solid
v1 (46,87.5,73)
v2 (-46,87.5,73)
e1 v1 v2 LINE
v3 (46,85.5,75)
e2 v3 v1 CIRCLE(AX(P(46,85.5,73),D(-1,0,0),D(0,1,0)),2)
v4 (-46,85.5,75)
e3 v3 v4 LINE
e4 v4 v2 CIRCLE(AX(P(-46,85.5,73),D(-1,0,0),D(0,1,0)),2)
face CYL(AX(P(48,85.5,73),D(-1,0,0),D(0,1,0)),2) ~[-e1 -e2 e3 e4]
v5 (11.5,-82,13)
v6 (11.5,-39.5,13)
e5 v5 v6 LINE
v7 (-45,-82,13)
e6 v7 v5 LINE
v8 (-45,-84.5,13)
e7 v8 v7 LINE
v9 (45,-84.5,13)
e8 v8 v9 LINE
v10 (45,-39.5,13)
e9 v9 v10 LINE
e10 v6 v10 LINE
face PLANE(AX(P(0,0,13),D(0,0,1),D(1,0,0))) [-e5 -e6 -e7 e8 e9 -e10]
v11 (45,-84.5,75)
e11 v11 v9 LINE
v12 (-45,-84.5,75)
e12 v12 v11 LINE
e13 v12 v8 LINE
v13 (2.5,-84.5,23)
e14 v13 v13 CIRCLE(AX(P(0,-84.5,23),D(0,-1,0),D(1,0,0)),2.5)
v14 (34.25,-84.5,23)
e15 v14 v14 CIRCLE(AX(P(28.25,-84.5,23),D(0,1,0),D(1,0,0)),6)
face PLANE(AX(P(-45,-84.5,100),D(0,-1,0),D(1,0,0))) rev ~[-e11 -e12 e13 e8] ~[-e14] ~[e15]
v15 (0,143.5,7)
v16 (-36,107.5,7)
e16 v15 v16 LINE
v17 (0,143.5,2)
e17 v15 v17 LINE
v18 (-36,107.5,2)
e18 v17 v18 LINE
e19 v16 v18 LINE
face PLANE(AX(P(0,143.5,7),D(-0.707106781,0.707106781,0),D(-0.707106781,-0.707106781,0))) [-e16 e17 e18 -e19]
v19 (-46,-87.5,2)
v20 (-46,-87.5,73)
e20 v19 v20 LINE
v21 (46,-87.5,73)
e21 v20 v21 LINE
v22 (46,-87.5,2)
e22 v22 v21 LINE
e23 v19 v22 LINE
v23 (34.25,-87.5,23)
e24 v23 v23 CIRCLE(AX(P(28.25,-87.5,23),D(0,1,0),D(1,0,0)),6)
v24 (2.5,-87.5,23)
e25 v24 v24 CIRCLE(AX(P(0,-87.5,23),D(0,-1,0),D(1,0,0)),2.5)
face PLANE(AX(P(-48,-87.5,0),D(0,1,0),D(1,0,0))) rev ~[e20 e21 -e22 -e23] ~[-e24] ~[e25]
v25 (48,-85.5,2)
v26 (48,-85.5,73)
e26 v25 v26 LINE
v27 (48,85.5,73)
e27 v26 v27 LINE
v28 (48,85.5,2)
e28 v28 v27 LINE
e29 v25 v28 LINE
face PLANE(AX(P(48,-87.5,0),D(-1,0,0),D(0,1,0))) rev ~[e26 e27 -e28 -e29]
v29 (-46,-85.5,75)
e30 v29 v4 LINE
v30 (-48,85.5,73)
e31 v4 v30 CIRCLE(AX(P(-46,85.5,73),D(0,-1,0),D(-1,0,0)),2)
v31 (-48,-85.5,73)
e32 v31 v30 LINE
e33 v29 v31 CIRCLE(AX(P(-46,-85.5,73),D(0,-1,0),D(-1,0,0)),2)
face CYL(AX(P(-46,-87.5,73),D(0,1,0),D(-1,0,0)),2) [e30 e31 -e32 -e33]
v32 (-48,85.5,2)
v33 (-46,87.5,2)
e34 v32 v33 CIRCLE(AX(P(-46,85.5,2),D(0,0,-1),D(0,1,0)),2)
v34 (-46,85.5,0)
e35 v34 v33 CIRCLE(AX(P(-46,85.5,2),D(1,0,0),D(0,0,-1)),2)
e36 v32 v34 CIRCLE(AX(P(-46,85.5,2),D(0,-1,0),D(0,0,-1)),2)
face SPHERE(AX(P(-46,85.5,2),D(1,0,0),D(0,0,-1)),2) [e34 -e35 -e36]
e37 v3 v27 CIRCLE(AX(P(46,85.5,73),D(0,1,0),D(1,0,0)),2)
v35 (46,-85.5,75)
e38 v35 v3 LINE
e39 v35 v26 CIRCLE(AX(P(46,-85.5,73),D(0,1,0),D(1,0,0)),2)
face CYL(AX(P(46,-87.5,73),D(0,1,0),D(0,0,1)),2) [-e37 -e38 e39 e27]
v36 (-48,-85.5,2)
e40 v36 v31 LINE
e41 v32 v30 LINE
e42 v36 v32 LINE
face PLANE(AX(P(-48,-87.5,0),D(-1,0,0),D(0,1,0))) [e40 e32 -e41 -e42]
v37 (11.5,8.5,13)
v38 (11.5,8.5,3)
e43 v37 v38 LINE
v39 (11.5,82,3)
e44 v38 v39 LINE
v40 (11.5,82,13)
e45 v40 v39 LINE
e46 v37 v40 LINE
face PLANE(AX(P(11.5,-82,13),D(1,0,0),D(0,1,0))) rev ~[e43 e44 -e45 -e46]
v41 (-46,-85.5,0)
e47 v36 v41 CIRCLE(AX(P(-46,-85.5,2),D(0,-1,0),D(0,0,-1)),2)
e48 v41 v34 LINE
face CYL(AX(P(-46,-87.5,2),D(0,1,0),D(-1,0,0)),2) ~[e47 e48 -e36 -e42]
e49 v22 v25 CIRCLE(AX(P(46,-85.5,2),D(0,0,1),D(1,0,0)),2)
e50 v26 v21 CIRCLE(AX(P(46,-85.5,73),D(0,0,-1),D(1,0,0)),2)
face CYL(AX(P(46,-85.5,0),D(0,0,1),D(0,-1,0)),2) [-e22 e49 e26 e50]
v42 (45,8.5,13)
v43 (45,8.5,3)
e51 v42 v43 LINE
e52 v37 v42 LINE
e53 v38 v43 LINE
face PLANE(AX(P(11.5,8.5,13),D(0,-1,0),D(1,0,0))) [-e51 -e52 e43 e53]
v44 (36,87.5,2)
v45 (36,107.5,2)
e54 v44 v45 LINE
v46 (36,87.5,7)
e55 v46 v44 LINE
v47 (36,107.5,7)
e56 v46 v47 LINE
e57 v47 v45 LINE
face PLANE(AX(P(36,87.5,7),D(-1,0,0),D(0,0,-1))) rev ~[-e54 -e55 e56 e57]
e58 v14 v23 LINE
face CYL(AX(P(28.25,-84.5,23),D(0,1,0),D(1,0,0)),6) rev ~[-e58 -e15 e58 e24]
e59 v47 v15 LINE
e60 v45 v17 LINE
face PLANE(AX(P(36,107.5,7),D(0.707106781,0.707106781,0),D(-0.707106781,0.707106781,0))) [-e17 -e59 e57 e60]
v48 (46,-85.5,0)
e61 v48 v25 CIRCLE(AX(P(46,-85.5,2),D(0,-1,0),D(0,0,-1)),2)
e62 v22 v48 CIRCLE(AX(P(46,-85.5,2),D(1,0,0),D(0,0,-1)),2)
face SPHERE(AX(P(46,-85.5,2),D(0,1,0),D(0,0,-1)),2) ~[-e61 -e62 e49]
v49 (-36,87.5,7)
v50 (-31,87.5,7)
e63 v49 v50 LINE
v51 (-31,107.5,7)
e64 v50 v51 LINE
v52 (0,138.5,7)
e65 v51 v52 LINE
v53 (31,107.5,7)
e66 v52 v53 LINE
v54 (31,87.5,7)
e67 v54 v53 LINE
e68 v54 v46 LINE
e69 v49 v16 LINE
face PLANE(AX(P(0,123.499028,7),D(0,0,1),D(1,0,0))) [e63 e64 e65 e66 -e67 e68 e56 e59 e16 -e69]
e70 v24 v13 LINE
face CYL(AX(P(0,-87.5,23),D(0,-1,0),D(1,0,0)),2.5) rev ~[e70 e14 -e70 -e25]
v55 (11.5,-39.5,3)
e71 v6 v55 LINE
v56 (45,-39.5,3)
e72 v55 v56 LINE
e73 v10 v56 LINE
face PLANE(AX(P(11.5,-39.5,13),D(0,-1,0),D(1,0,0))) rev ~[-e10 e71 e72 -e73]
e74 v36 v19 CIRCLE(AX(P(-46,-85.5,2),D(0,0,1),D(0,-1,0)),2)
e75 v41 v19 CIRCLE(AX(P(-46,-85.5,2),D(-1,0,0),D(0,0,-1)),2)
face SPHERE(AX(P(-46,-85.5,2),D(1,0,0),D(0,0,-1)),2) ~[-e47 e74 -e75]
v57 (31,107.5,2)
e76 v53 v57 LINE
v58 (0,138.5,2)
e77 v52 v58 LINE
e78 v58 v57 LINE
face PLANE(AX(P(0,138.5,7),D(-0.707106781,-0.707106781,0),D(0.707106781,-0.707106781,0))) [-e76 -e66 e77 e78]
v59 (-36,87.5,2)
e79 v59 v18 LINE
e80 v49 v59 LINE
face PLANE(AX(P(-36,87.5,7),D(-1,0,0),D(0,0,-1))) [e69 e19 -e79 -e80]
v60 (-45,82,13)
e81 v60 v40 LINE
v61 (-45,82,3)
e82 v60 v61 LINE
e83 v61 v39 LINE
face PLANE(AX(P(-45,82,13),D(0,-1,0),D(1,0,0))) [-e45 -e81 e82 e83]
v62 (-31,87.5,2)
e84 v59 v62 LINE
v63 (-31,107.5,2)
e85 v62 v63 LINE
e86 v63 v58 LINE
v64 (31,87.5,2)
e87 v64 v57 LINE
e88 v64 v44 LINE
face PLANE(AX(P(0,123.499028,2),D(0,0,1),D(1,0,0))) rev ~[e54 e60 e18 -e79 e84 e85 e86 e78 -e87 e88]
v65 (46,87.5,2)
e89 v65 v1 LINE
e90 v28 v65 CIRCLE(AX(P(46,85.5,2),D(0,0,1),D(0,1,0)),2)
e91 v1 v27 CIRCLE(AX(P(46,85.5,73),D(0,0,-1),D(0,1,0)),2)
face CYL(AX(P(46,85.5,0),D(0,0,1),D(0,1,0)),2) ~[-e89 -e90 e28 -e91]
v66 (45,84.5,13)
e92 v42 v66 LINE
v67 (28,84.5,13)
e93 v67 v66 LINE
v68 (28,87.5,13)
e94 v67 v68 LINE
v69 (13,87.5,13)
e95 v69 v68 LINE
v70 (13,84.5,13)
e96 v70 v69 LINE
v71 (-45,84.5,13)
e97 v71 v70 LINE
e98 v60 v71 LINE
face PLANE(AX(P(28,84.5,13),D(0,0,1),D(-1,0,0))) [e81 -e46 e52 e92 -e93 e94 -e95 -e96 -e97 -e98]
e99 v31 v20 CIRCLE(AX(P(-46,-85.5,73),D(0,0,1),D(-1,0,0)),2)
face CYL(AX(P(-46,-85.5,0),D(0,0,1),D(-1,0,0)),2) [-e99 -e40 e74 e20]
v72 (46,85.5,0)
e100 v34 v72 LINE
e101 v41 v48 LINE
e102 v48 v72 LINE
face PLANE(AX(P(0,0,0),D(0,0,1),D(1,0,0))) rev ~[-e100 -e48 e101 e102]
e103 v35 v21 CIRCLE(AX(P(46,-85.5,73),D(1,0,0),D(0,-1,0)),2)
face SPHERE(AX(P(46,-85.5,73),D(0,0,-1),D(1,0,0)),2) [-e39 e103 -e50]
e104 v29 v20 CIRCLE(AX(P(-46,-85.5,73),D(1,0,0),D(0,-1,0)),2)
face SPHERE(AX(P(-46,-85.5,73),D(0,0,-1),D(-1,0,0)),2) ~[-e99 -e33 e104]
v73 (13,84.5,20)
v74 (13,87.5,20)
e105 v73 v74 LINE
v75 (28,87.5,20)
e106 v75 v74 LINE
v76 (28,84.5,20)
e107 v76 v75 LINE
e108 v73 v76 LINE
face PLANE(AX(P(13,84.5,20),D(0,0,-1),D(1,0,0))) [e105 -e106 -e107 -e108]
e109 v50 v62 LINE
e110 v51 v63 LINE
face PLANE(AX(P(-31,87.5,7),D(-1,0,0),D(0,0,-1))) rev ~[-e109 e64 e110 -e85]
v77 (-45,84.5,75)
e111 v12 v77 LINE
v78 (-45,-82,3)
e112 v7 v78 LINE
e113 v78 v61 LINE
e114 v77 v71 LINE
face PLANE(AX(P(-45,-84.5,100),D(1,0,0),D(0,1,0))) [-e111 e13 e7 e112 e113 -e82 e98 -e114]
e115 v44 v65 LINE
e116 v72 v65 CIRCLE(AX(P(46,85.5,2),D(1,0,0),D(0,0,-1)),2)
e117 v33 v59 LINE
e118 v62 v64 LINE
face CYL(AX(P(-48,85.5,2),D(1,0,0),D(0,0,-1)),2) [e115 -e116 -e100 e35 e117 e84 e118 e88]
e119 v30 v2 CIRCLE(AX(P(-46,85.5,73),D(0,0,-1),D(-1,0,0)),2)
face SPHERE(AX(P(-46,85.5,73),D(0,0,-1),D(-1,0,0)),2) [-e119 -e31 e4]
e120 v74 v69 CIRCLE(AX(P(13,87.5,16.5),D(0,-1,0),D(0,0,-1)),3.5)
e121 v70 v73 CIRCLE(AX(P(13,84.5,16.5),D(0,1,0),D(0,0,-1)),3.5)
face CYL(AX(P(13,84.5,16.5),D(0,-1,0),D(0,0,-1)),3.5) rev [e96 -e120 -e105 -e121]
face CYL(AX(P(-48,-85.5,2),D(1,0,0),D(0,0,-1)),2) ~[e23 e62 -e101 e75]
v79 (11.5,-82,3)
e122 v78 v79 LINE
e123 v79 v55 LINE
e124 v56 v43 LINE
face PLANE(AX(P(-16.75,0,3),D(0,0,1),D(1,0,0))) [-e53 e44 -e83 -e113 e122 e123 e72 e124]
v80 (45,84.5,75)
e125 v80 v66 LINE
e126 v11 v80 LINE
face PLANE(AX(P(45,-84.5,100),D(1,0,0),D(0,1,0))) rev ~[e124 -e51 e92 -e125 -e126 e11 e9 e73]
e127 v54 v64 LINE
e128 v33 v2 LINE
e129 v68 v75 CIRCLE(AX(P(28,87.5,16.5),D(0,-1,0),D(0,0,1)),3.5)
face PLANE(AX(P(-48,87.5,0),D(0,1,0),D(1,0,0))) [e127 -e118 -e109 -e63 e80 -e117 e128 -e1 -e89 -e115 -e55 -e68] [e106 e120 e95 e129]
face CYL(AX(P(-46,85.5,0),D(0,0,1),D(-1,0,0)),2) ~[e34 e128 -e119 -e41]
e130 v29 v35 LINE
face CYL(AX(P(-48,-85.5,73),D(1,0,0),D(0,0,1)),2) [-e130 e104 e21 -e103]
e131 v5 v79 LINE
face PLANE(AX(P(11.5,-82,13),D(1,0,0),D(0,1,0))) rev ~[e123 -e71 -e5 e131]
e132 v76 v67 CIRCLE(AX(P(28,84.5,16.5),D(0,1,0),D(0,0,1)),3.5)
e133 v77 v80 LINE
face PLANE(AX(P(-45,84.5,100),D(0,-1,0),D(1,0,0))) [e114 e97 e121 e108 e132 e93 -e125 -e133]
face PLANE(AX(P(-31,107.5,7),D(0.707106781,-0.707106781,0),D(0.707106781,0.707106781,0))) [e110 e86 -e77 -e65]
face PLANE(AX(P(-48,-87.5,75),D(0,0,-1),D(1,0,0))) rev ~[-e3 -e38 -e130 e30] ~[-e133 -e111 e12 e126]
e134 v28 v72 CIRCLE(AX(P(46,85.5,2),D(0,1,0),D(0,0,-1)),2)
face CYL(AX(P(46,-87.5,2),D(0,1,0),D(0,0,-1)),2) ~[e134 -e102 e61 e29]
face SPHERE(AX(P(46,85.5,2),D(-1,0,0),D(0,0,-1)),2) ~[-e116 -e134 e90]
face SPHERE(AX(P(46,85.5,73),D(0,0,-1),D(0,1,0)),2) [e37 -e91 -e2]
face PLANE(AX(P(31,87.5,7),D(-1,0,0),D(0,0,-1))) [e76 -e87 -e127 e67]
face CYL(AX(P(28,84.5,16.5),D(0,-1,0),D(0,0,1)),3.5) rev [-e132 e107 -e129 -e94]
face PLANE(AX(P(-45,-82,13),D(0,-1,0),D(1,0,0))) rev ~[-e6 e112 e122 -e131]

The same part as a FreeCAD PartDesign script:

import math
import FreeCAD as App
import Part
import Sketcher

V = App.Vector
Q = App.Units.Quantity


def edges_at(feature, points):
    """Names of the edges that pass closest to the given points."""
    edges = feature.Shape.Edges
    near = lambda p: min(range(len(edges)), key=lambda i: edges[i].distToShape(Part.Vertex(*p))[0])
    return sorted({f"Edge{near(p) + 1}" for p in points})


def add_polygon(sketch, points):
    """Adds a closed chain of lines whose ends are joined by coincident constraints."""
    first, n = sketch.GeometryCount, len(points)
    for a, b in zip(points, points[1:] + points[:1]):
        sketch.addGeometry(Part.LineSegment(App.Vector(*a, 0), App.Vector(*b, 0)), False)
    for i in range(n):
        sketch.addConstraint(Sketcher.Constraint("Coincident", first + i, 2, first + (i + 1) % n, 1))

doc = App.newDocument("Part")
body = doc.addObject("PartDesign::Body", "Body")

# Sketch on XY plane
sketch1 = body.newObject("Sketcher::SketchObject", "Sketch")
sketch1.AttachmentSupport = (doc.getObject("XY_Plane"), [""])
sketch1.MapMode = "FlatFace"
add_polygon(sketch1, [(-48, 87.5), (-48, -87.5), (48, -87.5), (48, 87.5)])  # lines 0-3
sketch1.addConstraint([
    Sketcher.Constraint("Vertical", 0),
    Sketcher.Constraint("Horizontal", 1),
    Sketcher.Constraint("Vertical", 2),
    Sketcher.Constraint("Horizontal", 3),
    Sketcher.Constraint("Symmetric", 0, 2, 2, 2, -1, 1),
    Sketcher.Constraint("DistanceX", 1, 1, 1, 2, Q("96 mm")),
    Sketcher.Constraint("DistanceY", 0, 2, 0, 1, Q("175 mm")),
])
pad1 = body.newObject("PartDesign::Pad", "Pad")
pad1.Profile = sketch1
pad1.Length = 100

# Sketch on XY plane
sketch2 = body.newObject("Sketcher::SketchObject", "Sketch001")
sketch2.AttachmentSupport = (doc.getObject("XY_Plane"), [""])
sketch2.MapMode = "FlatFace"
sketch2.AttachmentOffset = App.Placement(V(0, 0, 100), App.Rotation())
add_polygon(sketch2, [(-45, 84.5), (-45, -84.5), (45, -84.5), (45, 84.5)])  # lines 0-3
sketch2.addConstraint([
    Sketcher.Constraint("Vertical", 0),
    Sketcher.Constraint("Horizontal", 1),
    Sketcher.Constraint("Vertical", 2),
    Sketcher.Constraint("Horizontal", 3),
    Sketcher.Constraint("Symmetric", 0, 2, 2, 2, -1, 1),
    Sketcher.Constraint("DistanceX", 1, 1, 1, 2, Q("90 mm")),
    Sketcher.Constraint("DistanceY", 0, 2, 0, 1, Q("169 mm")),
])
pocket1 = body.newObject("PartDesign::Pocket", "Pocket")
pocket1.Profile = sketch2
pocket1.Length = 87

# Sketch on XY plane
sketch3 = body.newObject("Sketcher::SketchObject", "Sketch002")
sketch3.AttachmentSupport = (doc.getObject("XY_Plane"), [""])
sketch3.MapMode = "FlatFace"
sketch3.AttachmentOffset = App.Placement(V(0, 0, 13), App.Rotation())
add_polygon(sketch3, [(-45, 82), (-45, -82), (11.5, -82), (11.5, 82)])  # lines 0-3
sketch3.addConstraint([
    Sketcher.Constraint("Vertical", 0),
    Sketcher.Constraint("Horizontal", 1),
    Sketcher.Constraint("Vertical", 2),
    Sketcher.Constraint("Horizontal", 3),
    Sketcher.Constraint("DistanceY", 0, 2, 0, 1, Q("164 mm")),
    Sketcher.Constraint("DistanceX", 1, 1, 1, 2, Q("56.5 mm")),
    Sketcher.Constraint("DistanceX", 0, 2, -1, 1, Q("45 mm")),
    Sketcher.Constraint("DistanceY", 0, 2, -1, 1, Q("82 mm")),
])
pocket2 = body.newObject("PartDesign::Pocket", "Pocket001")
pocket2.Profile = sketch3
pocket2.Length = 10

# Sketch on XZ plane
sketch4 = body.newObject("Sketcher::SketchObject", "Sketch003")
sketch4.AttachmentSupport = (doc.getObject("XZ_Plane"), [""])
sketch4.MapMode = "FlatFace"
sketch4.AttachmentOffset = App.Placement(V(0, 0, 84.5), App.Rotation())
sketch4.addGeometry(Part.Circle(V(28.25, 23, 0), V(0, 0, 1), 6), False)
sketch4.addConstraint([
    Sketcher.Constraint("Diameter", 0, Q("12 mm")),
    Sketcher.Constraint("DistanceY", -1, 1, 0, 3, Q("23 mm")),
    Sketcher.Constraint("DistanceX", -1, 1, 0, 3, Q("28.25 mm")),
])
pocket3 = body.newObject("PartDesign::Pocket", "Pocket002")
pocket3.Profile = sketch4
pocket3.Length = 10
pocket3.Reversed = True

# Sketch on XY plane
sketch5 = body.newObject("Sketcher::SketchObject", "Sketch004")
sketch5.AttachmentSupport = (doc.getObject("XY_Plane"), [""])
sketch5.MapMode = "FlatFace"
sketch5.AttachmentOffset = App.Placement(V(0, 0, 13), App.Rotation())
add_polygon(sketch5, [(11.5, 8.5), (11.5, -39.5), (45, -39.5), (45, 8.5)])  # lines 0-3
sketch5.addConstraint([
    Sketcher.Constraint("Vertical", 0),
    Sketcher.Constraint("Horizontal", 1),
    Sketcher.Constraint("Vertical", 2),
    Sketcher.Constraint("Horizontal", 3),
    Sketcher.Constraint("DistanceY", 0, 2, 0, 1, Q("48 mm")),
    Sketcher.Constraint("DistanceX", 1, 1, 1, 2, Q("33.5 mm")),
    Sketcher.Constraint("DistanceX", -1, 1, 1, 2, Q("45 mm")),
    Sketcher.Constraint("DistanceY", 0, 2, -1, 1, Q("39.5 mm")),
])
pocket4 = body.newObject("PartDesign::Pocket", "Pocket003")
pocket4.Profile = sketch5
pocket4.Length = 10

# Sketch on XZ plane
sketch6 = body.newObject("Sketcher::SketchObject", "Sketch005")
sketch6.AttachmentSupport = (doc.getObject("XZ_Plane"), [""])
sketch6.MapMode = "FlatFace"
sketch6.AttachmentOffset = App.Placement(V(0, 0, -84.5), App.Rotation())
sketch6.addGeometry([
    Part.LineSegment(V(28, 20, 0), V(13, 20, 0)),
    Part.ArcOfCircle(Part.Circle(V(13, 16.5, 0), V(0, 0, 1), 3.5), math.radians(90), math.radians(270)),
    Part.LineSegment(V(13, 13, 0), V(28, 13, 0)),
    Part.ArcOfCircle(Part.Circle(V(28, 16.5, 0), V(0, 0, 1), 3.5), math.radians(-90), math.radians(90)),
], False)
sketch6.addConstraint([
    Sketcher.Constraint("Tangent", 0, 2, 1, 1),
    Sketcher.Constraint("Tangent", 1, 2, 2, 1),
    Sketcher.Constraint("Tangent", 2, 2, 3, 1),
    Sketcher.Constraint("Tangent", 3, 2, 0, 1),
    Sketcher.Constraint("Horizontal", 0),
    Sketcher.Constraint("Horizontal", 2),
    Sketcher.Constraint("Radius", 1, Q("3.5 mm")),
    Sketcher.Constraint("DistanceX", 0, 2, 0, 1, Q("15 mm")),
    Sketcher.Constraint("DistanceX", -1, 1, 1, 3, Q("13 mm")),
    Sketcher.Constraint("DistanceY", -1, 1, 0, 2, Q("20 mm")),
])
pocket5 = body.newObject("PartDesign::Pocket", "Pocket004")
pocket5.Profile = sketch6
pocket5.Length = 10

# Sketch on XZ plane
sketch7 = body.newObject("Sketcher::SketchObject", "Sketch006")
sketch7.AttachmentSupport = (doc.getObject("XZ_Plane"), [""])
sketch7.MapMode = "FlatFace"
sketch7.AttachmentOffset = App.Placement(V(0, 0, 87.5), App.Rotation())
add_polygon(sketch7, [(-48, 100), (-48, 75), (48, 75), (48, 100)])  # lines 0-3
sketch7.addConstraint([
    Sketcher.Constraint("Vertical", 0),
    Sketcher.Constraint("Horizontal", 1),
    Sketcher.Constraint("Vertical", 2),
    Sketcher.Constraint("Horizontal", 3),
    Sketcher.Constraint("DistanceX", 1, 1, 1, 2, Q("96 mm")),
    Sketcher.Constraint("DistanceY", 0, 2, 0, 1, Q("25 mm")),
    Sketcher.Constraint("DistanceX", 0, 2, -1, 1, Q("48 mm")),
    Sketcher.Constraint("DistanceY", -1, 1, 0, 2, Q("75 mm")),
])
pocket6 = body.newObject("PartDesign::Pocket", "Pocket005")
pocket6.Profile = sketch7
pocket6.Length = 200
doc.recompute()

fillet = body.newObject("PartDesign::Fillet", "Fillet")
fillet.Base = (pocket6, edges_at(pocket6, [
    (0, 87.5, 0),
    (48, 0, 0),
    (0, -87.5, 0),
    (-48, 0, 0),
    (-48, 87.5, 37.5),
    (48, 87.5, 37.5),
    (48, -87.5, 37.5),
    (-48, -87.5, 37.5),
    (-48, 0, 75),
    (0, 87.5, 75),
    (48, 0, 75),
    (0, -87.5, 75),
]))
fillet.Radius = 2

# Sketch on XZ plane
sketch8 = body.newObject("Sketcher::SketchObject", "Sketch007")
sketch8.AttachmentSupport = (doc.getObject("XZ_Plane"), [""])
sketch8.MapMode = "FlatFace"
sketch8.AttachmentOffset = App.Placement(V(0, 0, 87.5), App.Rotation())
sketch8.addGeometry(Part.Circle(V(0, 23, 0), V(0, 0, 1), 2.5), False)
sketch8.addConstraint([
    Sketcher.Constraint("PointOnObject", 0, 3, -2),
    Sketcher.Constraint("Diameter", 0, Q("5 mm")),
    Sketcher.Constraint("DistanceY", -1, 1, 0, 3, Q("23 mm")),
])
pocket7 = body.newObject("PartDesign::Pocket", "Pocket006")
pocket7.Profile = sketch8
pocket7.Length = 5

# Sketch on XZ plane
sketch9 = body.newObject("Sketcher::SketchObject", "Sketch008")
sketch9.AttachmentSupport = (doc.getObject("XZ_Plane"), [""])
sketch9.MapMode = "FlatFace"
sketch9.AttachmentOffset = App.Placement(V(0, 0, -87.5), App.Rotation())
add_polygon(sketch9, [(-36, 2), (-36, 7), (-31, 7), (-31, 2)])  # lines 0-3
add_polygon(sketch9, [(31, 2), (31, 7), (36, 7), (36, 2)])  # lines 4-7
sketch9.addConstraint([
    Sketcher.Constraint("Vertical", 0),
    Sketcher.Constraint("Horizontal", 1),
    Sketcher.Constraint("Vertical", 2),
    Sketcher.Constraint("Horizontal", 3),
    Sketcher.Constraint("Vertical", 4),
    Sketcher.Constraint("Horizontal", 5),
    Sketcher.Constraint("Vertical", 6),
    Sketcher.Constraint("Horizontal", 7),
    Sketcher.Constraint("Symmetric", 1, 2, 4, 2, -2),
    Sketcher.Constraint("Symmetric", 3, 2, 6, 2, -2),
    Sketcher.Constraint("Equal", 7, 0),
    Sketcher.Constraint("DistanceX", 1, 1, 1, 2, Q("5 mm")),
    Sketcher.Constraint("DistanceX", 0, 2, -1, 1, Q("36 mm")),
    Sketcher.Constraint("DistanceY", -1, 1, 0, 2, Q("7 mm")),
])
pad2 = body.newObject("PartDesign::Pad", "Pad001")
pad2.Profile = sketch9
pad2.Length = 20
pad2.Reversed = True

# Sketch on XY plane
sketch10 = body.newObject("Sketcher::SketchObject", "Sketch009")
sketch10.AttachmentSupport = (doc.getObject("XY_Plane"), [""])
sketch10.MapMode = "FlatFace"
sketch10.AttachmentOffset = App.Placement(V(0, 0, 7), App.Rotation())
add_polygon(sketch10, [(-31, 107.5), (0, 138.5), (31, 107.5), (36, 107.5), (0, 143.5), (-36, 107.5)])  # lines 0-5
sketch10.addConstraint([
    Sketcher.Constraint("Horizontal", 2),
    Sketcher.Constraint("Horizontal", 5),
    Sketcher.Constraint("Symmetric", 2, 2, 4, 2, -2),
    Sketcher.Constraint("PointOnObject", 0, 2, -2),
    Sketcher.Constraint("PointOnObject", 3, 2, -2),
    Sketcher.Constraint("Perpendicular", 0, 1),
    Sketcher.Constraint("Parallel", 1, 3),
    Sketcher.Constraint("Perpendicular", 3, 4),
    Sketcher.Constraint("DistanceX", 2, 1, 2, 2, Q("5 mm")),
    Sketcher.Constraint("DistanceX", -1, 1, 1, 2, Q("31 mm")),
    Sketcher.Constraint("DistanceY", -1, 1, 0, 2, Q("138.5 mm")),
])
pad3 = body.newObject("PartDesign::Pad", "Pad002")
pad3.Profile = sketch10
pad3.Length = 5
pad3.Reversed = True

doc.recompute()
